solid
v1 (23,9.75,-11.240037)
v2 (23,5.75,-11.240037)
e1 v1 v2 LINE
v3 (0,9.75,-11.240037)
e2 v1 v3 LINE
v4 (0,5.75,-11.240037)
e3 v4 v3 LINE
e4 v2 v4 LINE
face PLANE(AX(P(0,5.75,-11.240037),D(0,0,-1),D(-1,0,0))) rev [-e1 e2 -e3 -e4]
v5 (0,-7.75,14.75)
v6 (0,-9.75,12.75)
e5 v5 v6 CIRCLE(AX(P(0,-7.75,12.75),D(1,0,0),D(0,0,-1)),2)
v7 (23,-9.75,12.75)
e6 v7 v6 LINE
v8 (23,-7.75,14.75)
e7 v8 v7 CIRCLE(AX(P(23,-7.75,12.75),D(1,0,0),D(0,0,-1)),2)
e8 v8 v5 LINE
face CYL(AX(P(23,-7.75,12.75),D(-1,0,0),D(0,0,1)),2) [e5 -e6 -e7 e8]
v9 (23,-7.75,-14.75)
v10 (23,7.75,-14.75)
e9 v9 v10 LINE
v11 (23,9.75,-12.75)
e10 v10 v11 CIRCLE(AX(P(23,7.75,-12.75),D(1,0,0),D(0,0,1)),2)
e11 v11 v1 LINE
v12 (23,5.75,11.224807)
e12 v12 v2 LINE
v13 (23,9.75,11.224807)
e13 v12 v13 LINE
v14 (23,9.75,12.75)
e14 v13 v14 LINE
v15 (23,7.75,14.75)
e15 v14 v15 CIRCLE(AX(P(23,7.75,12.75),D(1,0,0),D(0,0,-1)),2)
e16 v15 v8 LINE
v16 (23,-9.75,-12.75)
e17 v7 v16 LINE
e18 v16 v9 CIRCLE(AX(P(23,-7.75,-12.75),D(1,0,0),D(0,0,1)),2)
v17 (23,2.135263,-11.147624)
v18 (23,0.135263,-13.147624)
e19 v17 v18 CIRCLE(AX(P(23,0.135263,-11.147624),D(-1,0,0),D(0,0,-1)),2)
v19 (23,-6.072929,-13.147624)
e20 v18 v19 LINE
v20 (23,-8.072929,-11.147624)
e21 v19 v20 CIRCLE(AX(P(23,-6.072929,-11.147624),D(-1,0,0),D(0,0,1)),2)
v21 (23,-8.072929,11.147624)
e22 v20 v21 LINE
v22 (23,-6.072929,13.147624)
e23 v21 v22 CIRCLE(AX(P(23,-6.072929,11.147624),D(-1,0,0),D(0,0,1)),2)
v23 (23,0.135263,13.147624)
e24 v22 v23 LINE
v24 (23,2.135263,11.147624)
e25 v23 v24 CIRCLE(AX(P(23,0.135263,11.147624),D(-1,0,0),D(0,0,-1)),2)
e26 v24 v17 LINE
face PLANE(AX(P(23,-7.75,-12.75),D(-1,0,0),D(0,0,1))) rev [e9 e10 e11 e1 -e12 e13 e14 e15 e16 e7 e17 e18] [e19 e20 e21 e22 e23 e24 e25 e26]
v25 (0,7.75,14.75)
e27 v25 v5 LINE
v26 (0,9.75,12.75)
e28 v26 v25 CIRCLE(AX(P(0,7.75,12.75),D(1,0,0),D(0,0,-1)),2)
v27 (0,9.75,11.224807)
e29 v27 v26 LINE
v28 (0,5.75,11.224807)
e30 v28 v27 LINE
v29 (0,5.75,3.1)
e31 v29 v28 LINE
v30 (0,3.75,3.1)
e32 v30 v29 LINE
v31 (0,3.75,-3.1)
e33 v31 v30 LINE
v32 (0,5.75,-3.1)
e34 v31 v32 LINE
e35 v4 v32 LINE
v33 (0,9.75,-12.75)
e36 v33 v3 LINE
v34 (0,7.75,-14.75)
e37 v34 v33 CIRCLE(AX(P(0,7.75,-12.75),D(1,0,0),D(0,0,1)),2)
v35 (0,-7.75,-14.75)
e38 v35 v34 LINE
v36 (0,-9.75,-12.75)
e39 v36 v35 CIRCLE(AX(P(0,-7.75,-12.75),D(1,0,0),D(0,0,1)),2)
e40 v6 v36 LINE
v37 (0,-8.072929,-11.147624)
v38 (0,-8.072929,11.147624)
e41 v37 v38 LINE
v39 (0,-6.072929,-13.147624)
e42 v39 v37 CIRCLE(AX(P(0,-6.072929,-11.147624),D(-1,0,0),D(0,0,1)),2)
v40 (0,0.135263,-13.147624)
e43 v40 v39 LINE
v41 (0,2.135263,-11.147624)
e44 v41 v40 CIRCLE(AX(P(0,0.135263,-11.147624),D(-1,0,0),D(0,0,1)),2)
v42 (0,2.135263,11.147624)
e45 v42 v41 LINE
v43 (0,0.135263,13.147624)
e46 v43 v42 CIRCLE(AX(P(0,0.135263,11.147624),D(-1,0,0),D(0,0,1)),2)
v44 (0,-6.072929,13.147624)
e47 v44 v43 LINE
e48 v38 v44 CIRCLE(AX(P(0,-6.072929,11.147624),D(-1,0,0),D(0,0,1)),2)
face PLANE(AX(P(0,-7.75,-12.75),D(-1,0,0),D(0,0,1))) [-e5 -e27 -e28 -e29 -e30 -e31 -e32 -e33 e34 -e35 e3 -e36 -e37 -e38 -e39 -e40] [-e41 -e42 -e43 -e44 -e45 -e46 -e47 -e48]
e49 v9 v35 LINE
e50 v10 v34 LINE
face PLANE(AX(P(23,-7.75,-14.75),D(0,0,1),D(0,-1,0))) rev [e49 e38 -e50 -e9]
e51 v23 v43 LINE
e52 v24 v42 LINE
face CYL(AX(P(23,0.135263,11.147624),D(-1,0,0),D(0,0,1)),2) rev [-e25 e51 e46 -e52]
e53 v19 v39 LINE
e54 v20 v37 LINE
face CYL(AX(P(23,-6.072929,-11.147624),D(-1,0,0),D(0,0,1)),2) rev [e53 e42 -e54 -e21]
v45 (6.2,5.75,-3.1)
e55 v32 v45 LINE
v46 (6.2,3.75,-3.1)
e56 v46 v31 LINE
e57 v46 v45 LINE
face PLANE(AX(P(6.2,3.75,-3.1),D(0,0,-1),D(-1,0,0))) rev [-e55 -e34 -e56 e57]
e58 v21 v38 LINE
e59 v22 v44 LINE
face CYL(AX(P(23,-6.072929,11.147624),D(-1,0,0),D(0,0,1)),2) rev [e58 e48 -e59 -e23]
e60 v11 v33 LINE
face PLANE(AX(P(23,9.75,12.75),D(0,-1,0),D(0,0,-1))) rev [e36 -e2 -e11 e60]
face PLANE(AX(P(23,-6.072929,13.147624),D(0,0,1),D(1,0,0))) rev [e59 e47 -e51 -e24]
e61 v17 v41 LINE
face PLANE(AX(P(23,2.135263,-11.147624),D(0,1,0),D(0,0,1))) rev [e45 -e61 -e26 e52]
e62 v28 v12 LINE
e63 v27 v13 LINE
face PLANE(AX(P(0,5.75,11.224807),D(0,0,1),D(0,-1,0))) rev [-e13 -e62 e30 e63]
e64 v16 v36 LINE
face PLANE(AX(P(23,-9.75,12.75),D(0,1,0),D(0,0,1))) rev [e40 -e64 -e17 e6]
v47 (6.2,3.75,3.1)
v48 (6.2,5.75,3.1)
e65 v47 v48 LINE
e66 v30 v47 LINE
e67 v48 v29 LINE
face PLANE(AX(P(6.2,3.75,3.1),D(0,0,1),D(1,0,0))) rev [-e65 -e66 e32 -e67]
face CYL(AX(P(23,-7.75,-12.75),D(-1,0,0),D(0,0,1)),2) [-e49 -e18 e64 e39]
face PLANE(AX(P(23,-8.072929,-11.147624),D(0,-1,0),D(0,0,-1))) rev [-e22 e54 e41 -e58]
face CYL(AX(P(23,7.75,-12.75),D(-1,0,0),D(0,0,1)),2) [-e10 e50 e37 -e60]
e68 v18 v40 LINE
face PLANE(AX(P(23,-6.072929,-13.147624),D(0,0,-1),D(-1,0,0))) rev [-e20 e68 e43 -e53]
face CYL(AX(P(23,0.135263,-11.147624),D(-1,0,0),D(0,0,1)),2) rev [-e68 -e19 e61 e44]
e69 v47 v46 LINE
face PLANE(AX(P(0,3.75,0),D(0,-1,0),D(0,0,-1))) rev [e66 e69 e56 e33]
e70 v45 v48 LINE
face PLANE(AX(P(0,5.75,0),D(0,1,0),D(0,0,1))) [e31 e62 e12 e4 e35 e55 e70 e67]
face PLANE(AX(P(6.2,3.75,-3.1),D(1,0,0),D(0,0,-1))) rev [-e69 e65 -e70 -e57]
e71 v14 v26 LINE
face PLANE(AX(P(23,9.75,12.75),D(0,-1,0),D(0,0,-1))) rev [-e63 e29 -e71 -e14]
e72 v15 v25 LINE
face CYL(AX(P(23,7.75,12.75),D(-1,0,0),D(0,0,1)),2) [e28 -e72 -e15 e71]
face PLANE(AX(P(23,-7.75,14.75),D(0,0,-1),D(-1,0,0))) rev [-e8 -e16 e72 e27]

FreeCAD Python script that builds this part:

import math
import FreeCAD as App
import Part
import Sketcher
from FreeCAD import Vector


def add_polygon(sketch, points):
    """Adds a closed chain of lines whose ends are joined by coincident constraints."""
    first, n = sketch.GeometryCount, len(points)
    for a, b in zip(points, points[1:] + points[:1]):
        sketch.addGeometry(Part.LineSegment(App.Vector(*a, 0), App.Vector(*b, 0)), False)
    for i in range(n):
        sketch.addConstraint(Sketcher.Constraint("Coincident", first + i, 2, first + (i + 1) % n, 1))

doc = App.newDocument("Part")
body = doc.addObject("PartDesign::Body", "Body")

sketch1 = body.newObject("Sketcher::SketchObject", "Sketch")
sketch1.AttachmentSupport = (doc.getObject("YZ_Plane"), [""])
sketch1.MapMode = "FlatFace"
sketch1.addGeometry([
    Part.LineSegment(Vector(-9.8, 12.8, 0), Vector(-9.8, -12.8, 0)),
    Part.ArcOfCircle(Part.Circle(Vector(-7.7, -12.7, 0), Vector(0, 0, 1), 2), math.radians(-180), math.radians(-90)),
    Part.LineSegment(Vector(-7.8, -14.8, 0), Vector(7.8, -14.8, 0)),
    Part.ArcOfCircle(Part.Circle(Vector(7.7, -12.7, 0), Vector(0, 0, 1), 2), math.radians(-90), math.radians(0)),
    Part.LineSegment(Vector(9.8, -12.8, 0), Vector(9.8, 12.8, 0)),
    Part.ArcOfCircle(Part.Circle(Vector(7.7, 12.7, 0), Vector(0, 0, 1), 2), math.radians(0), math.radians(90)),
    Part.LineSegment(Vector(7.8, 14.8, 0), Vector(-7.8, 14.8, 0)),
    Part.ArcOfCircle(Part.Circle(Vector(-7.7, 12.7, 0), Vector(0, 0, 1), 2), math.radians(90), math.radians(180)),
], False)
sketch1.addConstraint([
    Sketcher.Constraint("Tangent", 0, 2, 1, 1),
    Sketcher.Constraint("Tangent", 1, 2, 2, 1),
    Sketcher.Constraint("Tangent", 2, 2, 3, 1),
    Sketcher.Constraint("Tangent", 3, 2, 4, 1),
    Sketcher.Constraint("Tangent", 4, 2, 5, 1),
    Sketcher.Constraint("Tangent", 5, 2, 6, 1),
    Sketcher.Constraint("Tangent", 6, 2, 7, 1),
    Sketcher.Constraint("Tangent", 7, 2, 0, 1),
    Sketcher.Constraint("Vertical", 0),
    Sketcher.Constraint("Horizontal", 2),
    Sketcher.Constraint("Vertical", 4),
    Sketcher.Constraint("Horizontal", 6),
    Sketcher.Constraint("Equal", 1, 3),
    Sketcher.Constraint("Equal", 3, 5),
    Sketcher.Constraint("Equal", 5, 7),
    Sketcher.Constraint("Symmetric", 1, 3, 5, 3, -1, 1),
    Sketcher.Constraint("Radius", 1, 2.0),
    Sketcher.Constraint("DistanceX", 2, 1, 2, 2, 15.5),
    Sketcher.Constraint("DistanceY", 0, 2, 0, 1, 25.5),
])
pad1 = body.newObject("PartDesign::Pad", "Pad")
pad1.Profile = sketch1
pad1.Length = 23

sketch2 = body.newObject("Sketcher::SketchObject", "Sketch001")
sketch2.AttachmentSupport = (doc.getObject("XZ_Plane"), [""])
sketch2.MapMode = "FlatFace"
sketch2.AttachmentOffset = App.Placement(Vector(0, 0, -9.75), App.Rotation())
add_polygon(sketch2, [(0, -3), (0, 3), (6, 3), (6, -3)])
sketch2.addConstraint([
    Sketcher.Constraint("Vertical", 0),
    Sketcher.Constraint("Horizontal", 1),
    Sketcher.Constraint("Vertical", 2),
    Sketcher.Constraint("Horizontal", 3),
    Sketcher.Constraint("Symmetric", 0, 2, 3, 2, -1, 1),
    Sketcher.Constraint("Equal", 3, 0),
    Sketcher.Constraint("DistanceX", 1, 1, 1, 2, 6.2),
])
pocket1 = body.newObject("PartDesign::Pocket", "Pocket")
pocket1.Profile = sketch2
pocket1.Length = 6
pocket1.Reversed = True

sketch3 = body.newObject("Sketcher::SketchObject", "Sketch002")
sketch3.AttachmentSupport = (doc.getObject("YZ_Plane"), [""])
sketch3.MapMode = "FlatFace"
sketch3.addGeometry([
    Part.LineSegment(Vector(-8.1, -11.1, 0), Vector(-8.1, 11.1, 0)),
    Part.ArcOfCircle(Part.Circle(Vector(-6.1, 11.1, 0), Vector(0, 0, 1), 2), math.radians(90), math.radians(180)),
    Part.LineSegment(Vector(-6.1, 13.1, 0), Vector(0.1, 13.1, 0)),
    Part.ArcOfCircle(Part.Circle(Vector(0.1, 11.1, 0), Vector(0, 0, 1), 2), math.radians(0), math.radians(90)),
    Part.LineSegment(Vector(2.1, 11.1, 0), Vector(2.1, -11.1, 0)),
    Part.ArcOfCircle(Part.Circle(Vector(0.1, -11.1, 0), Vector(0, 0, 1), 2), math.radians(-90), math.radians(0)),
    Part.LineSegment(Vector(0.1, -13.1, 0), Vector(-6.1, -13.1, 0)),
    Part.ArcOfCircle(Part.Circle(Vector(-6.1, -11.1, 0), Vector(0, 0, 1), 2), math.radians(-180), math.radians(-90)),
], False)
sketch3.addConstraint([
    Sketcher.Constraint("Tangent", 0, 2, 1, 2),
    Sketcher.Constraint("Tangent", 1, 1, 2, 1),
    Sketcher.Constraint("Tangent", 2, 2, 3, 2),
    Sketcher.Constraint("Tangent", 3, 1, 4, 1),
    Sketcher.Constraint("Tangent", 4, 2, 5, 2),
    Sketcher.Constraint("Tangent", 5, 1, 6, 1),
    Sketcher.Constraint("Tangent", 6, 2, 7, 2),
    Sketcher.Constraint("Tangent", 7, 1, 0, 1),
    Sketcher.Constraint("Vertical", 0),
    Sketcher.Constraint("Horizontal", 2),
    Sketcher.Constraint("Vertical", 4),
    Sketcher.Constraint("Horizontal", 6),
    Sketcher.Constraint("Equal", 1, 3),
    Sketcher.Constraint("Equal", 3, 5),
    Sketcher.Constraint("Equal", 5, 7),
    Sketcher.Constraint("Radius", 1, 2.0),
    Sketcher.Constraint("DistanceX", 2, 1, 2, 2, 6.208192),
    Sketcher.Constraint("DistanceY", 0, 1, 0, 2, 22.295247),
    Sketcher.Constraint("DistanceX", 1, 3, -1, 1, 6.072929),
    Sketcher.Constraint("DistanceY", -1, 1, 1, 3, 11.147624),
])
pocket2 = body.newObject("PartDesign::Pocket", "Pocket001")
pocket2.Profile = sketch3
pocket2.Type = "ThroughAll"
pocket2.Midplane = True

sketch4 = body.newObject("Sketcher::SketchObject", "Sketch003")
sketch4.AttachmentSupport = (doc.getObject("XZ_Plane"), [""])
sketch4.MapMode = "FlatFace"
sketch4.AttachmentOffset = App.Placement(Vector(0, 0, -9.75), App.Rotation())
add_polygon(sketch4, [(0, -11), (0, 11), (24, 11), (24, -11)])
sketch4.addConstraint([
    Sketcher.Constraint("Vertical", 0),
    Sketcher.Constraint("Horizontal", 1),
    Sketcher.Constraint("Vertical", 2),
    Sketcher.Constraint("Horizontal", 3),
    Sketcher.Constraint("PointOnObject", 0, 2, -2),
    Sketcher.Constraint("DistanceX", 1, 1, 1, 2, 24.28485),
    Sketcher.Constraint("DistanceY", 0, 1, 0, 2, 22.464844),
    Sketcher.Constraint("DistanceY", -1, 1, 0, 2, 11.224807),
])
pocket3 = body.newObject("PartDesign::Pocket", "Pocket002")
pocket3.Profile = sketch4
pocket3.Length = 4
pocket3.Reversed = True

doc.recompute()
